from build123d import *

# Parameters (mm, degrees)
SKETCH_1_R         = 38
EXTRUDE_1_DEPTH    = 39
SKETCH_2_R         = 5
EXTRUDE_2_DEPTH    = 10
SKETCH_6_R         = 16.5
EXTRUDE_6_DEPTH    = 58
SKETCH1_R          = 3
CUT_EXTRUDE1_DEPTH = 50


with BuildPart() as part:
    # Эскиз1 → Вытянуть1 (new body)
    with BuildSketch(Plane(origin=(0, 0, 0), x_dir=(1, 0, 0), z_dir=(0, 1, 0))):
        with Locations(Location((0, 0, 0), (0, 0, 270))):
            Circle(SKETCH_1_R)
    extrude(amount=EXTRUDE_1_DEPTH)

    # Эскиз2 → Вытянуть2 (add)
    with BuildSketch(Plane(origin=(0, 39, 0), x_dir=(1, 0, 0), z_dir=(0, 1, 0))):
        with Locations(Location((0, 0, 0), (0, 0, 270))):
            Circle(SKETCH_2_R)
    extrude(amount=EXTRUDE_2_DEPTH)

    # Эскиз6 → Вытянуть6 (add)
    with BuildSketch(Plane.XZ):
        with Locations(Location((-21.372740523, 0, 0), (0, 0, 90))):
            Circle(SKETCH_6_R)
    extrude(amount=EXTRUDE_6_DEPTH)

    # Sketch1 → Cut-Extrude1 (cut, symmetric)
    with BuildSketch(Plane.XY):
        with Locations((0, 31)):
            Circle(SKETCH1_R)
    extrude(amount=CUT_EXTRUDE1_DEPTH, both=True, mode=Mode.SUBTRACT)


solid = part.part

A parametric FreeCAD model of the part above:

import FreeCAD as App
import Part
import Sketcher

doc = App.newDocument("Part")
body = doc.addObject("PartDesign::Body", "Body")

# Sketch on XZ plane
sketch1 = body.newObject("Sketcher::SketchObject", "Sketch")
sketch1.AttachmentSupport = (doc.getObject("XZ_Plane"), [""])
sketch1.MapMode = "FlatFace"
sketch1.addGeometry(Part.Circle(App.Vector(0, 0, 0), App.Vector(0, 0, 1), 38), False)
sketch1.addConstraint([
    Sketcher.Constraint("Coincident", 0, 3, -1, 1),
    Sketcher.Constraint("Diameter", 0, 76.0),
])
pad1 = body.newObject("PartDesign::Pad", "Pad")
pad1.Profile = sketch1
pad1.Length = 39
pad1.Reversed = True

# Sketch on XZ plane
sketch2 = body.newObject("Sketcher::SketchObject", "Sketch001")
sketch2.AttachmentSupport = (doc.getObject("XZ_Plane"), [""])
sketch2.MapMode = "FlatFace"
sketch2.AttachmentOffset = App.Placement(App.Vector(0, 0, -39), App.Rotation())
sketch2.addGeometry(Part.Circle(App.Vector(0, 0, 0), App.Vector(0, 0, 1), 5), False)
sketch2.addConstraint([
    Sketcher.Constraint("Coincident", 0, 3, -1, 1),
    Sketcher.Constraint("Diameter", 0, 10.0),
])
pad2 = body.newObject("PartDesign::Pad", "Pad001")
pad2.Profile = sketch2
pad2.Length = 10
pad2.Reversed = True

# Sketch on XZ plane
sketch3 = body.newObject("Sketcher::SketchObject", "Sketch002")
sketch3.AttachmentSupport = (doc.getObject("XZ_Plane"), [""])
sketch3.MapMode = "FlatFace"
sketch3.addGeometry(Part.Circle(App.Vector(-21, 0, 0), App.Vector(0, 0, 1), 16), False)
sketch3.addConstraint([
    Sketcher.Constraint("PointOnObject", 0, 3, -1),
    Sketcher.Constraint("Diameter", 0, 33.0),
    Sketcher.Constraint("DistanceX", 0, 3, -1, 1, 21.372741),
])
pad3 = body.newObject("PartDesign::Pad", "Pad002")
pad3.Profile = sketch3
pad3.Length = 58

# Sketch on XY plane
sketch4 = body.newObject("Sketcher::SketchObject", "Sketch003")
sketch4.AttachmentSupport = (doc.getObject("XY_Plane"), [""])
sketch4.MapMode = "FlatFace"
sketch4.addGeometry(Part.Circle(App.Vector(0, 31, 0), App.Vector(0, 0, 1), 3), False)
sketch4.addConstraint([
    Sketcher.Constraint("PointOnObject", 0, 3, -2),
    Sketcher.Constraint("Diameter", 0, 6.0),
    Sketcher.Constraint("DistanceY", -1, 1, 0, 3, 31.0),
])
pocket1 = body.newObject("PartDesign::Pocket", "Pocket")
pocket1.Profile = sketch4
pocket1.Length = 100
pocket1.Midplane = True

doc.recompute()
